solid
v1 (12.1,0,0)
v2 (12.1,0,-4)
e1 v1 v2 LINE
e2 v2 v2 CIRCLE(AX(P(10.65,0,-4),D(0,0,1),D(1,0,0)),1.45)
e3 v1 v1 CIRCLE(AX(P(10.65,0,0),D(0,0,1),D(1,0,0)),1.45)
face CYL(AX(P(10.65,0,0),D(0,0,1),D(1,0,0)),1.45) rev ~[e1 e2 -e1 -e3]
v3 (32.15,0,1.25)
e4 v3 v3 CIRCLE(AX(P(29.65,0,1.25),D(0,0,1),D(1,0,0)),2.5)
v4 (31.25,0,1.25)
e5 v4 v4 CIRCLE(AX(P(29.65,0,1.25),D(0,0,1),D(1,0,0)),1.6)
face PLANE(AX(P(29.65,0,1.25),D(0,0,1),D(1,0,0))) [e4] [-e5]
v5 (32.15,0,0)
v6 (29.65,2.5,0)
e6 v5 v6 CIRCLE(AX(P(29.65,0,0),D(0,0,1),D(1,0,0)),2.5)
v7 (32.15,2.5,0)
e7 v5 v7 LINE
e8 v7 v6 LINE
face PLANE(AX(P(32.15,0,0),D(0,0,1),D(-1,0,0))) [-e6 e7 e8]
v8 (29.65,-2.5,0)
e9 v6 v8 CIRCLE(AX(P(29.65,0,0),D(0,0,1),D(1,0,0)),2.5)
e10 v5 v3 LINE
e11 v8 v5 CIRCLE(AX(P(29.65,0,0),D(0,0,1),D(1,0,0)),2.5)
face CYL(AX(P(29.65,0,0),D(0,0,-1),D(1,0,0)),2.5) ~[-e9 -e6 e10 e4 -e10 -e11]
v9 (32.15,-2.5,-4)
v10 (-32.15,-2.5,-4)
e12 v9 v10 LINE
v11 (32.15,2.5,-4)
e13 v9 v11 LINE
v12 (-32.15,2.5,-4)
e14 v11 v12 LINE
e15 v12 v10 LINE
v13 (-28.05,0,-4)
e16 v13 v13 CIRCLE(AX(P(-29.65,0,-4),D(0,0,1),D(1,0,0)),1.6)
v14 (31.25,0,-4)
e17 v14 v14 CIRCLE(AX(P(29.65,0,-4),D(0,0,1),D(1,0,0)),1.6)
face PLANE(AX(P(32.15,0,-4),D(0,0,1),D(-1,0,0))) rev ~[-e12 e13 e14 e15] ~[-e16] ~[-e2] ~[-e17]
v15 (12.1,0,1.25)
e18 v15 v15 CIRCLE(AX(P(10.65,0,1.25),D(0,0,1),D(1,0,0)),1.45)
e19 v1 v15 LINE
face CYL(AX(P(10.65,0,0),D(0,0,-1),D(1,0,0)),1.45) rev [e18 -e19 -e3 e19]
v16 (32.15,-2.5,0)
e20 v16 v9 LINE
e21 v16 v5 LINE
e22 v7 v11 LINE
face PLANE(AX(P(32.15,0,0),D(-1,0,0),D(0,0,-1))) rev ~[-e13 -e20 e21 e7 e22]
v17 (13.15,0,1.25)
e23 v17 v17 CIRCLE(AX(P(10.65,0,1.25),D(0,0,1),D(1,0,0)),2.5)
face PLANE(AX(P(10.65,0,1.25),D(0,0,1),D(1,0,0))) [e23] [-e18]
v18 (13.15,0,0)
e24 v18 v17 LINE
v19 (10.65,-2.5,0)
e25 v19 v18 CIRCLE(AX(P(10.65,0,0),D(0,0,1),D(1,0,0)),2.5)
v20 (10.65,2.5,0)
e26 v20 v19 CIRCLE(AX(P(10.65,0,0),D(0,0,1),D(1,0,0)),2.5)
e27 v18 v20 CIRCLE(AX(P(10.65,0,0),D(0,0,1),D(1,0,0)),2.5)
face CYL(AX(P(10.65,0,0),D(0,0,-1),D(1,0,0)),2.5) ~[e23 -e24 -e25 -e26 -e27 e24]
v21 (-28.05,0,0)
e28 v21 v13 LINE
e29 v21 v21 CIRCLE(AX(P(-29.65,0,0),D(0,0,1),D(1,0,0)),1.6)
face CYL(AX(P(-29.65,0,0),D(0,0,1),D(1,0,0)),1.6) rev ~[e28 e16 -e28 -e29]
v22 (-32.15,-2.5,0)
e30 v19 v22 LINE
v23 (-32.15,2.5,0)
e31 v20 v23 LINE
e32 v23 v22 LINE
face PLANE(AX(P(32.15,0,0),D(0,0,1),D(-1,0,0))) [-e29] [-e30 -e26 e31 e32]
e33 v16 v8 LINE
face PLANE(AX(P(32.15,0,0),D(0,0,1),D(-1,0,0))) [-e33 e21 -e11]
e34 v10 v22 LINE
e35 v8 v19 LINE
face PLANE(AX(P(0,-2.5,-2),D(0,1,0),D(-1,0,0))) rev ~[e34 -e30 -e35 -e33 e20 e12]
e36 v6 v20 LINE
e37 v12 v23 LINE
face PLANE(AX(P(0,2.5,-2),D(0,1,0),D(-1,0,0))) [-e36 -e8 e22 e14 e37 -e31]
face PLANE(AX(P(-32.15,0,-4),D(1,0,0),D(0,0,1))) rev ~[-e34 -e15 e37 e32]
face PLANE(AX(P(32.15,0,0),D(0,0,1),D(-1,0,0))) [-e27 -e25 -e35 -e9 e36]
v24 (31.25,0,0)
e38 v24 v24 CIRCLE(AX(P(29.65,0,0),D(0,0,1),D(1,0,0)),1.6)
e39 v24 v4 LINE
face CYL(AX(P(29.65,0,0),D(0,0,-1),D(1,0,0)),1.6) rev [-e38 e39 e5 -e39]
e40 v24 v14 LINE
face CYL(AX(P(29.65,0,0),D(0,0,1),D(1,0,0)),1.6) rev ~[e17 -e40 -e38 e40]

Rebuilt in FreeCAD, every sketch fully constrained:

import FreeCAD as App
import Part
import Sketcher


def add_polygon(sketch, points):
    """Adds a closed chain of lines whose ends are joined by coincident constraints."""
    first, n = sketch.GeometryCount, len(points)
    for a, b in zip(points, points[1:] + points[:1]):
        sketch.addGeometry(Part.LineSegment(App.Vector(*a, 0), App.Vector(*b, 0)), False)
    for i in range(n):
        sketch.addConstraint(Sketcher.Constraint("Coincident", first + i, 2, first + (i + 1) % n, 1))

doc = App.newDocument("Part")
params = doc.addObject("Spreadsheet::Sheet", "Params")
for row, (alias, value) in enumerate([
    ("sketch1_height", "4 mm"),
    ("sketch1_width", "64.3 mm"),
    ("pad1_length", "5 mm"),
    ("sketch2_diameter", "3.2 mm"),
    ("sketch2_diameter2", "2.9 mm"),
    ("sketch3_diameter", "5 mm"),
    ("sketch3_diameter2", "2.9 mm"),
    ("sketch3_diameter3", "3.2 mm"),
    ("pad2_length", "1.25 mm"),
], start=1):
    params.set(f"A{row}", alias)
    params.set(f"B{row}", "=" + value)
    params.setAlias(f"B{row}", alias)

body = doc.addObject("PartDesign::Body", "Body")

# Sketch on XZ plane
sketch1 = body.newObject("Sketcher::SketchObject", "Sketch")
sketch1.AttachmentSupport = (doc.getObject("XZ_Plane"), [""])
sketch1.MapMode = "FlatFace"
add_polygon(sketch1, [(32.1, 0), (-32.1, 0), (-32.1, -4), (32.1, -4)])  # lines 0-3
sketch1.addConstraint([
    Sketcher.Constraint("Horizontal", 0),
    Sketcher.Constraint("Vertical", 1),
    Sketcher.Constraint("Horizontal", 2),
    Sketcher.Constraint("Vertical", 3),
    Sketcher.Constraint("Symmetric", 0, 2, 3, 2, -1, 1),
    Sketcher.Constraint("DistanceY", 1, 2, 1, 1, 4.0),
    Sketcher.Constraint("DistanceX", 0, 2, 0, 1, 64.3),
])
sketch1.setExpression("Constraints[9]", "Params.sketch1_height")
sketch1.setExpression("Constraints[10]", "Params.sketch1_width")
pad1 = body.newObject("PartDesign::Pad", "Pad")
pad1.Profile = sketch1
pad1.setExpression("Length", "Params.pad1_length")
pad1.Midplane = True

# Sketch on XY plane
sketch2 = body.newObject("Sketcher::SketchObject", "Sketch001")
sketch2.AttachmentSupport = (doc.getObject("XY_Plane"), [""])
sketch2.MapMode = "FlatFace"
sketch2.addGeometry([
    Part.Circle(App.Vector(29.6, 0, 0), App.Vector(0, 0, 1), 1.6),
    Part.Circle(App.Vector(10.7, 0, 0), App.Vector(0, 0, 1), 1.4),
    Part.Circle(App.Vector(-29.6, 0, 0), App.Vector(0, 0, 1), 1.6),
], False)
sketch2.addConstraint([
    Sketcher.Constraint("Equal", 0, 2),
    Sketcher.Constraint("Symmetric", 0, 3, 2, 3, -1, 1),
    Sketcher.Constraint("PointOnObject", 0, 3, -1),
    Sketcher.Constraint("PointOnObject", 1, 3, -1),
    Sketcher.Constraint("Diameter", 0, 3.2),
    Sketcher.Constraint("Diameter", 1, 2.9),
    Sketcher.Constraint("DistanceX", 1, 3, 0, 3, 19.0),
    Sketcher.Constraint("DistanceX", 2, 3, 1, 3, 40.3),
])
sketch2.setExpression("Constraints[4]", "Params.sketch2_diameter")
sketch2.setExpression("Constraints[5]", "Params.sketch2_diameter2")
pocket1 = body.newObject("PartDesign::Pocket", "Pocket")
pocket1.Profile = sketch2
pocket1.Type = "ThroughAll"

# Sketch on XY plane
sketch3 = body.newObject("Sketcher::SketchObject", "Sketch002")
sketch3.AttachmentSupport = (doc.getObject("XY_Plane"), [""])
sketch3.MapMode = "FlatFace"
sketch3.addGeometry([
    Part.Circle(App.Vector(10.7, 0, 0), App.Vector(0, 0, 1), 2.5),
    Part.Circle(App.Vector(10.7, 0, 0), App.Vector(0, 0, 1), 1.4),
    Part.Circle(App.Vector(29.6, 0, 0), App.Vector(0, 0, 1), 2.5),
    Part.Circle(App.Vector(29.6, 0, 0), App.Vector(0, 0, 1), 1.6),
], False)
sketch3.addConstraint([
    Sketcher.Constraint("Coincident", 1, 3, 0, 3),
    Sketcher.Constraint("Coincident", 3, 3, 2, 3),
    Sketcher.Constraint("Equal", 0, 2),
    Sketcher.Constraint("PointOnObject", 0, 3, -1),
    Sketcher.Constraint("PointOnObject", 2, 3, -1),
    Sketcher.Constraint("Diameter", 0, 5.0),
    Sketcher.Constraint("Diameter", 1, 2.9),
    Sketcher.Constraint("Diameter", 3, 3.2),
    Sketcher.Constraint("DistanceX", 0, 3, 2, 3, 19.0),
    Sketcher.Constraint("DistanceX", -1, 1, 0, 3, 10.65),
])
sketch3.setExpression("Constraints[5]", "Params.sketch3_diameter")
sketch3.setExpression("Constraints[6]", "Params.sketch3_diameter2")
sketch3.setExpression("Constraints[7]", "Params.sketch3_diameter3")
pad2 = body.newObject("PartDesign::Pad", "Pad001")
pad2.Profile = sketch3
pad2.setExpression("Length", "Params.pad2_length")

doc.recompute()
